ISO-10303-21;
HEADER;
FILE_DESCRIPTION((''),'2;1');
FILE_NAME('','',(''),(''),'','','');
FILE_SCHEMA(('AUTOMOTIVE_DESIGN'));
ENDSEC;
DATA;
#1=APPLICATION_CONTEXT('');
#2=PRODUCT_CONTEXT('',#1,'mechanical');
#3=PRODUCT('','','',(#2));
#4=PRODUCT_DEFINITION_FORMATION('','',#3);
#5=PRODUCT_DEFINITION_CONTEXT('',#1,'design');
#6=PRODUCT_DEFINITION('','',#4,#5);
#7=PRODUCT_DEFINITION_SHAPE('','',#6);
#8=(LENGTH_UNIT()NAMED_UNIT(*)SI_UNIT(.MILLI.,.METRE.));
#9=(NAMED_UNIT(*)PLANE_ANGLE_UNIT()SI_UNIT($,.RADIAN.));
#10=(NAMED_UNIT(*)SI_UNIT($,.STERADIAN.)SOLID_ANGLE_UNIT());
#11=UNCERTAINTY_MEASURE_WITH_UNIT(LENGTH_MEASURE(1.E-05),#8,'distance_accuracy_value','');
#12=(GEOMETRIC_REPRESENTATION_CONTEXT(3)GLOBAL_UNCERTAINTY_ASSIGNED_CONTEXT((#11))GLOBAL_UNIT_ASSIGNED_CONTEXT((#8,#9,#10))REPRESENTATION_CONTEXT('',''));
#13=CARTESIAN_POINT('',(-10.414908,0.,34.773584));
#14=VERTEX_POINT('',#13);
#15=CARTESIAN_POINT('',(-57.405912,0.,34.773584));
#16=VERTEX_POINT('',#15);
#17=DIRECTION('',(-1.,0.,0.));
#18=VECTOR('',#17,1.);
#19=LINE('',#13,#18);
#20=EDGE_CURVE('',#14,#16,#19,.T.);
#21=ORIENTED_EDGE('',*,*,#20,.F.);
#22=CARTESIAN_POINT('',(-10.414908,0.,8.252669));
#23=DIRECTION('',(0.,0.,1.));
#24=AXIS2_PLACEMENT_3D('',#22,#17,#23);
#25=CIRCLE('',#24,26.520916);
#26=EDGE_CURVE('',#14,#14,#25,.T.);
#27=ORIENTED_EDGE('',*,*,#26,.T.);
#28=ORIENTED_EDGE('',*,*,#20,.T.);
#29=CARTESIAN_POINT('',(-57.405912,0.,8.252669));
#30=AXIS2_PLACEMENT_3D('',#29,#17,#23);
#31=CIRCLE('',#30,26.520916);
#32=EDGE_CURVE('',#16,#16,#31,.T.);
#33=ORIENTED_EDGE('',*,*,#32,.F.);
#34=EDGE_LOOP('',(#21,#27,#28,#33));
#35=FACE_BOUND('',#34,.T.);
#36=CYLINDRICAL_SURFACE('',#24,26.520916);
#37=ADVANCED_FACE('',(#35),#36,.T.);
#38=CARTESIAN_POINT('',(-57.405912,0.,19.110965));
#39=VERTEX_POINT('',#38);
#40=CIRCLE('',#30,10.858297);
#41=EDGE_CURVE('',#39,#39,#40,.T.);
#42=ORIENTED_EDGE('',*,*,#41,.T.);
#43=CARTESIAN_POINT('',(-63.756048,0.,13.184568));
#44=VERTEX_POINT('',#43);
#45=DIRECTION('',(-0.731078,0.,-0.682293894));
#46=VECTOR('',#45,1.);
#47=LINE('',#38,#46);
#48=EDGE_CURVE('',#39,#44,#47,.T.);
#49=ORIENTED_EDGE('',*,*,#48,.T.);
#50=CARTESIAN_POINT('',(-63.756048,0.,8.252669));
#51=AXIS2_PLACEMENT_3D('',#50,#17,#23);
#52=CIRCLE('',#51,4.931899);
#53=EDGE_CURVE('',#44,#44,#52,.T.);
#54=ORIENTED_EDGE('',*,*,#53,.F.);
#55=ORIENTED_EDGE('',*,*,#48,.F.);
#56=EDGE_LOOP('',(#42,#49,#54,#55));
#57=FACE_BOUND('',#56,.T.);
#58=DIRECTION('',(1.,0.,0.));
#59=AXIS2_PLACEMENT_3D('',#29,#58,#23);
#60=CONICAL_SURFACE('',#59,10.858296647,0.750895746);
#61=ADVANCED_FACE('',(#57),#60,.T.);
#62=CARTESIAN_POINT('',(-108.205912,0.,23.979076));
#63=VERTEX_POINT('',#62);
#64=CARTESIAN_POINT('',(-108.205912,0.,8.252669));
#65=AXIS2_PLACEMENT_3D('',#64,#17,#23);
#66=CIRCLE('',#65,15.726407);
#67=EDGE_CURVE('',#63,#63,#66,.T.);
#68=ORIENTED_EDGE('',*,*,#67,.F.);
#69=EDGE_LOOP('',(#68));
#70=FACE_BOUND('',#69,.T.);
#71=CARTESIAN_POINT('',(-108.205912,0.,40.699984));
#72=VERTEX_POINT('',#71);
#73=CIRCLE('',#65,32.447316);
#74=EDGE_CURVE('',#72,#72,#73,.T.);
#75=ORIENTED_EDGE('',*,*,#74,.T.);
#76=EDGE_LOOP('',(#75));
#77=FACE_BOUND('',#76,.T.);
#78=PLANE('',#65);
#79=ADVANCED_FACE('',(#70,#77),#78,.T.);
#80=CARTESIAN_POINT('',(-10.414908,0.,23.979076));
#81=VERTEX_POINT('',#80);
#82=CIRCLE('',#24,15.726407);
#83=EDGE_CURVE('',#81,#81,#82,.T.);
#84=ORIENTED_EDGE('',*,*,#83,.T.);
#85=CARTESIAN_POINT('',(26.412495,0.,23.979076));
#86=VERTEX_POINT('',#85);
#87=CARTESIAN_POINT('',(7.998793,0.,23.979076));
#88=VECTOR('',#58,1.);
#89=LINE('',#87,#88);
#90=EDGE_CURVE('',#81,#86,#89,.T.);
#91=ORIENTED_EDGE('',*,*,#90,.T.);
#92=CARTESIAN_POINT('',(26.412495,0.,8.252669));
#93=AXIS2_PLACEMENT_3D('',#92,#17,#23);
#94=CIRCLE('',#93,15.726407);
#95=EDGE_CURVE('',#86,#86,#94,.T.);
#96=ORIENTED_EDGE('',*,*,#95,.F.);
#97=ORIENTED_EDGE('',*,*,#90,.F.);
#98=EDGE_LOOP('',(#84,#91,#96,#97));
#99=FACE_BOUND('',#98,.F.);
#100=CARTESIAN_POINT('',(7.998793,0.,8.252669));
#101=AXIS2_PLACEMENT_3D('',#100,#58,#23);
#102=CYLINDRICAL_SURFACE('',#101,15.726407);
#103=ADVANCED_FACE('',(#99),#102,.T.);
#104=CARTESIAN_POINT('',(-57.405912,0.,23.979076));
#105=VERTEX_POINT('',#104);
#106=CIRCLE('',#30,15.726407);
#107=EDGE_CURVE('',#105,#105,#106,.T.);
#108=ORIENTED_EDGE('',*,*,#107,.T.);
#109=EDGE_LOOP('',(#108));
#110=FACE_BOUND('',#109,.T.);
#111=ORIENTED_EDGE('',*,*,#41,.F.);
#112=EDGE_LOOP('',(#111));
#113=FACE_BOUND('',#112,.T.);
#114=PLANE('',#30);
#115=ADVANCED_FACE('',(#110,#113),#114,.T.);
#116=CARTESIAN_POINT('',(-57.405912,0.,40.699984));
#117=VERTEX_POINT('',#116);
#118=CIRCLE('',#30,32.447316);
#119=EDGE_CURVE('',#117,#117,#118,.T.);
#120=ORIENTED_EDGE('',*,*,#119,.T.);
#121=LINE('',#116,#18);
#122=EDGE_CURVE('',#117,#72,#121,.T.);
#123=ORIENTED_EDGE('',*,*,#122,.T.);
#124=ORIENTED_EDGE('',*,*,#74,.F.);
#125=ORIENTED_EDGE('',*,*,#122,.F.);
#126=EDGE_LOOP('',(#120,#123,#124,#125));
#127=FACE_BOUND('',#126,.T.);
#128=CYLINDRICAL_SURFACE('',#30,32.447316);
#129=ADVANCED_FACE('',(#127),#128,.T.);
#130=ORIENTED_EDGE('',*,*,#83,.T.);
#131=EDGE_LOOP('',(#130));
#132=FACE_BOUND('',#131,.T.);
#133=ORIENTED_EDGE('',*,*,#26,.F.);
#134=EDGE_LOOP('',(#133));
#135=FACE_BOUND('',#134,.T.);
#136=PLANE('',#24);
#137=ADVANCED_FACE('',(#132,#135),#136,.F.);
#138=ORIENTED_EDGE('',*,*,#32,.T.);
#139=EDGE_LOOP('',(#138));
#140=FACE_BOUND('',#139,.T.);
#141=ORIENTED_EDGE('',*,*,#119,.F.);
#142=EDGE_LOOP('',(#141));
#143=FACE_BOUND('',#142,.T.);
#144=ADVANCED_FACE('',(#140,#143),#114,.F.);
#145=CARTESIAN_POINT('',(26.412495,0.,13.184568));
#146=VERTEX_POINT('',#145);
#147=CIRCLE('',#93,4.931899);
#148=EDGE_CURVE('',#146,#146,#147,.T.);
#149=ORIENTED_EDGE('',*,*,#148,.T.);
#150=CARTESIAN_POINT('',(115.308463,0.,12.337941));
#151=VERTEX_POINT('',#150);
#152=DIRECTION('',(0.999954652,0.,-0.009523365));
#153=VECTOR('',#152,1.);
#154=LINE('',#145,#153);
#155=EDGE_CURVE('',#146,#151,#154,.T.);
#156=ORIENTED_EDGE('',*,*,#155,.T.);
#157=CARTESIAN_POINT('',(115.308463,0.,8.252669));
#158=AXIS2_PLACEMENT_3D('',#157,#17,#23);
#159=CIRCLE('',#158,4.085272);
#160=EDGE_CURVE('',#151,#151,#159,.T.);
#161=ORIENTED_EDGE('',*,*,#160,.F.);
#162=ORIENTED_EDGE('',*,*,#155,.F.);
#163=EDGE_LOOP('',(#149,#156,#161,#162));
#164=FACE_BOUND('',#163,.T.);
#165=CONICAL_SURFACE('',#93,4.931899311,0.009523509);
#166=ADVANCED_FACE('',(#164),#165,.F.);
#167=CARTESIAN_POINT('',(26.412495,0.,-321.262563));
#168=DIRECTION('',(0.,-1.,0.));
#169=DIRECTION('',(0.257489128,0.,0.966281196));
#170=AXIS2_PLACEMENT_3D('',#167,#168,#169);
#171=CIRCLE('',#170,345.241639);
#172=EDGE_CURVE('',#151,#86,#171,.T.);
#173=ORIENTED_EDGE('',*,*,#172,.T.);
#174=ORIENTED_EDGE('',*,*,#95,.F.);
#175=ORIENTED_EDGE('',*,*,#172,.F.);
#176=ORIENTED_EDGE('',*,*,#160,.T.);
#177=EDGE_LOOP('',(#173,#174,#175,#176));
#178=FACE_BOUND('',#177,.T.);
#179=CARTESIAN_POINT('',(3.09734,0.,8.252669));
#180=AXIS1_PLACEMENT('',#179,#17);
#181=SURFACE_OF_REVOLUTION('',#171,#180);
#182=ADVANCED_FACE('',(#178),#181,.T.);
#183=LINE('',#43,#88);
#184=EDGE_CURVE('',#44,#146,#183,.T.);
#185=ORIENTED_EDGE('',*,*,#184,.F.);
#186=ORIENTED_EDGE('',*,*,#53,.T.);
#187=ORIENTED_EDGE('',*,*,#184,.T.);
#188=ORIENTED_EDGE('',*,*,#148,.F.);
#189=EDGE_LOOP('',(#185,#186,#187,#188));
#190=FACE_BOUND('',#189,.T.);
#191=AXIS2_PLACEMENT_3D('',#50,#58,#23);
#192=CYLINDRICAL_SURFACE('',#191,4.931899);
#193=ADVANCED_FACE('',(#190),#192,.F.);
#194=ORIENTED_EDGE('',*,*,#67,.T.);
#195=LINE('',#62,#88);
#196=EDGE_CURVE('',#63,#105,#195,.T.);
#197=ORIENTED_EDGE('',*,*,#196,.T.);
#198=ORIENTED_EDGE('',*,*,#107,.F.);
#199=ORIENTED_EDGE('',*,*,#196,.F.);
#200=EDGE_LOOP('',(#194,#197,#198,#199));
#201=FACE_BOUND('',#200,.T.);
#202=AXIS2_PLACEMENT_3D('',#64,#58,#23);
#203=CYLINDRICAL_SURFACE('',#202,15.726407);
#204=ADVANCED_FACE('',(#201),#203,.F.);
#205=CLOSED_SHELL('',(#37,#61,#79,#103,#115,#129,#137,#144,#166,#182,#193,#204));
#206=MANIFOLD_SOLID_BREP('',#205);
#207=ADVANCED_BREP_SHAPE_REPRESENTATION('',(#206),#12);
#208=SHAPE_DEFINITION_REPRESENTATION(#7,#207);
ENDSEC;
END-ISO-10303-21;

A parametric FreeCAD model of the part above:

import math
import FreeCAD as App
import Part
import Sketcher
Q = App.Units.Quantity

doc = App.newDocument("Part")
body = doc.addObject("PartDesign::Body", "Body")

sketch1 = body.newObject("Sketcher::SketchObject", "Sketch")
sketch1.AttachmentSupport = (doc.getObject("XZ_Plane"), [""])
sketch1.MapMode = "FlatFace"
sketch1.addGeometry(Part.LineSegment(App.Vector(-57.405912, 34.773584, 0), App.Vector(-57.405912, 40.699984, 0)), False)
sketch1.addGeometry(Part.LineSegment(App.Vector(-57.405912, 40.699984, 0), App.Vector(-108.205912, 40.699984, 0)), False)
sketch1.addGeometry(Part.LineSegment(App.Vector(-108.205912, 40.699984, 0), App.Vector(-108.205912, 23.979076, 0)), False)
sketch1.addGeometry(Part.LineSegment(App.Vector(-108.205912, 23.979076, 0), App.Vector(-57.405912, 23.979076, 0)), False)
sketch1.addGeometry(Part.LineSegment(App.Vector(-57.405912, 23.979076, 0), App.Vector(-57.405912, 19.110965, 0)), False)
sketch1.addGeometry(Part.LineSegment(App.Vector(-57.405912, 19.110965, 0), App.Vector(-63.756048, 13.184568, 0)), False)
sketch1.addGeometry(Part.LineSegment(App.Vector(-63.756048, 13.184568, 0), App.Vector(26.412495, 13.184568, 0)), False)
sketch1.addGeometry(Part.LineSegment(App.Vector(26.412495, 13.184568, 0), App.Vector(115.308463, 12.337941, 0)), False)
sketch1.addGeometry(Part.ArcOfCircle(Part.Circle(App.Vector(26.412495, -321.262563, 0), App.Vector(0, 0, 1), 345.241639), math.radians(75.078872), math.radians(90)), False)
sketch1.addGeometry(Part.LineSegment(App.Vector(26.412495, 23.979076, 0), App.Vector(-10.414908, 23.979076, 0)), False)
sketch1.addGeometry(Part.LineSegment(App.Vector(-10.414908, 23.979076, 0), App.Vector(-10.414908, 34.773584, 0)), False)
sketch1.addGeometry(Part.LineSegment(App.Vector(-10.414908, 34.773584, 0), App.Vector(-57.405912, 34.773584, 0)), False)
sketch1.addGeometry(Part.LineSegment(App.Vector(115.308463, 8.252669, 0), App.Vector(-108.205912, 8.252669, 0)), True)
sketch1.addConstraint(Sketcher.Constraint("Coincident", 0, 2, 1, 1))
sketch1.addConstraint(Sketcher.Constraint("Coincident", 1, 2, 2, 1))
sketch1.addConstraint(Sketcher.Constraint("Coincident", 2, 2, 3, 1))
sketch1.addConstraint(Sketcher.Constraint("Coincident", 3, 2, 4, 1))
sketch1.addConstraint(Sketcher.Constraint("Coincident", 4, 2, 5, 1))
sketch1.addConstraint(Sketcher.Constraint("Coincident", 5, 2, 6, 1))
sketch1.addConstraint(Sketcher.Constraint("Coincident", 6, 2, 7, 1))
sketch1.addConstraint(Sketcher.Constraint("Coincident", 7, 2, 8, 1))
sketch1.addConstraint(Sketcher.Constraint("Tangent", 8, 2, 9, 1))
sketch1.addConstraint(Sketcher.Constraint("Coincident", 9, 2, 10, 1))
sketch1.addConstraint(Sketcher.Constraint("Coincident", 10, 2, 11, 1))
sketch1.addConstraint(Sketcher.Constraint("Coincident", 11, 2, 0, 1))
sketch1.addConstraint(Sketcher.Constraint("Vertical", 0))
sketch1.addConstraint(Sketcher.Constraint("Horizontal", 1))
sketch1.addConstraint(Sketcher.Constraint("Vertical", 2))
sketch1.addConstraint(Sketcher.Constraint("Horizontal", 3))
sketch1.addConstraint(Sketcher.Constraint("Vertical", 4))
sketch1.addConstraint(Sketcher.Constraint("Horizontal", 6))
sketch1.addConstraint(Sketcher.Constraint("Horizontal", 9))
sketch1.addConstraint(Sketcher.Constraint("Vertical", 10))
sketch1.addConstraint(Sketcher.Constraint("Horizontal", 11))
sketch1.addConstraint(Sketcher.Constraint("Horizontal", 12))
sketch1.addConstraint(Sketcher.Constraint("Horizontal", 3, 2, 8, 2))
sketch1.addConstraint(Sketcher.Constraint("Vertical", 0, 2, 3, 2))
sketch1.addConstraint(Sketcher.Constraint("Vertical", 8, 3, 6, 2))
sketch1.addConstraint(Sketcher.Constraint("Vertical", 7, 2, 12, 1))
sketch1.addConstraint(Sketcher.Constraint("Vertical", 2, 2, 12, 2))
sketch1.addConstraint(Sketcher.Constraint("DistanceX", 1, 2, 1, 1, Q("2 in")))
sketch1.addConstraint(Sketcher.Constraint("Distance", 7, Q("3.5 in")))
sketch1.addConstraint(Sketcher.Constraint("Radius", 8, Q("345.241639 mm")))
sketch1.addConstraint(Sketcher.Constraint("DistanceY", 0, 1, 0, 2, Q("5.9264 mm")))
sketch1.addConstraint(Sketcher.Constraint("DistanceY", 2, 2, 2, 1, Q("16.720908 mm")))
sketch1.addConstraint(Sketcher.Constraint("DistanceY", 4, 2, 4, 1, Q("4.868111 mm")))
sketch1.addConstraint(Sketcher.Constraint("DistanceY", 12, 1, 6, 2, Q("4.931899 mm")))
sketch1.addConstraint(Sketcher.Constraint("Distance", 5, Q("8.685989 mm")))
sketch1.addConstraint(Sketcher.Constraint("DistanceX", 6, 1, 6, 2, Q("90.168543 mm")))
sketch1.addConstraint(Sketcher.Constraint("DistanceX", 9, 2, 9, 1, Q("36.827403 mm")))
sketch1.addConstraint(Sketcher.Constraint("DistanceX", 11, 2, 11, 1, Q("46.991004 mm")))
sketch1.addConstraint(Sketcher.Constraint("DistanceX", 5, 2, -1, 1, Q("63.756048 mm")))
sketch1.addConstraint(Sketcher.Constraint("DistanceY", -1, 1, 7, 2, Q("12.337941 mm")))
revolution = body.newObject("PartDesign::Revolution", "Revolution")
revolution.Profile = sketch1
revolution.ReferenceAxis = (sketch1, ["Axis0"])
revolution.Angle = 360

doc.recompute()
